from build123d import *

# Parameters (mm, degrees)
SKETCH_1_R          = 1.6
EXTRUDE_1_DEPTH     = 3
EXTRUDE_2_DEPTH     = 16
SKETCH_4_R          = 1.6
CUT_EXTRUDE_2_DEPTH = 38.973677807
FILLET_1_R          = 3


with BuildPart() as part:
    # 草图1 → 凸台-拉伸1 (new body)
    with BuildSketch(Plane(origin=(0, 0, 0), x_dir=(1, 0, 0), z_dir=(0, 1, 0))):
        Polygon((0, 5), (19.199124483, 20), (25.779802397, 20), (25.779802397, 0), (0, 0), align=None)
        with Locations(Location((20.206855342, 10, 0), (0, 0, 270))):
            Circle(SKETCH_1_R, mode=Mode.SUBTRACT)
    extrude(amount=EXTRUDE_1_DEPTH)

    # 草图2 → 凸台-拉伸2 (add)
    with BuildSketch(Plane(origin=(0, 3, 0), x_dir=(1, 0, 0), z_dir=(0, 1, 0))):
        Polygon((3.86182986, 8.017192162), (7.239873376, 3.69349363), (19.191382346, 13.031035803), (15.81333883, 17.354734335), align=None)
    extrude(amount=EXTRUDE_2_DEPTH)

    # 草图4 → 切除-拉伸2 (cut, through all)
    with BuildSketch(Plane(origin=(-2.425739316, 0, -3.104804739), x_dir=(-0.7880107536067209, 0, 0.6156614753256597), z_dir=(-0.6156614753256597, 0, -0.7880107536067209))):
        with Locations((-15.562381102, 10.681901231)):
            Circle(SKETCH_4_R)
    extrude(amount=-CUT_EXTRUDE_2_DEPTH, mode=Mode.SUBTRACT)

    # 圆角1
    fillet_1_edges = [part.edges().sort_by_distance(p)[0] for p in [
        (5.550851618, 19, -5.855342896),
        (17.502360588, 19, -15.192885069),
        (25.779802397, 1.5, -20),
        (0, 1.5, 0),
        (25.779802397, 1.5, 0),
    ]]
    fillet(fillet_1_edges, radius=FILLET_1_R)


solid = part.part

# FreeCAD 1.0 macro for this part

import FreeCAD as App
import Part
import Sketcher
Q = App.Units.Quantity


def edges_at(feature, points):
    """Names of the edges that pass closest to the given points."""
    edges = feature.Shape.Edges
    near = lambda p: min(range(len(edges)), key=lambda i: edges[i].distToShape(Part.Vertex(*p))[0])
    return sorted({f"Edge{near(p) + 1}" for p in points})

doc = App.newDocument("Part")
body = doc.addObject("PartDesign::Body", "Body")

sketch1 = body.newObject("Sketcher::SketchObject", "Sketch")
sketch1.AttachmentSupport = (doc.getObject("XZ_Plane"), [""])
sketch1.MapMode = "FlatFace"
sketch1.addGeometry([
    Part.LineSegment(App.Vector(19.2, -20, 0), App.Vector(0, -5, 0)),
    Part.LineSegment(App.Vector(0, -5, 0), App.Vector(0, 0, 0)),
    Part.LineSegment(App.Vector(0, 0, 0), App.Vector(25.8, 0, 0)),
    Part.LineSegment(App.Vector(25.8, 0, 0), App.Vector(25.8, -20, 0)),
    Part.LineSegment(App.Vector(25.8, -20, 0), App.Vector(19.2, -20, 0)),
    Part.Circle(App.Vector(20.2, -10, 0), App.Vector(0, 0, 1), 1.6),
], False)
sketch1.addConstraint([
    Sketcher.Constraint("Coincident", 0, 2, 1, 1),
    Sketcher.Constraint("Coincident", 1, 2, 2, 1),
    Sketcher.Constraint("Coincident", 2, 2, 3, 1),
    Sketcher.Constraint("Coincident", 3, 2, 4, 1),
    Sketcher.Constraint("Coincident", 4, 2, 0, 1),
    Sketcher.Constraint("Vertical", 1),
    Sketcher.Constraint("Horizontal", 2),
    Sketcher.Constraint("Vertical", 3),
    Sketcher.Constraint("Horizontal", 4),
    Sketcher.Constraint("Coincident", 1, 2, -1, 1),
    Sketcher.Constraint("Diameter", 5, 3.2),
    Sketcher.Constraint("DistanceY", 1, 1, 1, 2, 5.0),
    Sketcher.Constraint("DistanceY", 3, 2, 3, 1, 20.0),
    Sketcher.Constraint("Angle", 0, Q("142 deg")),
    Sketcher.Constraint("DistanceY", 5, 3, -1, 1, 10.0),
    Sketcher.Constraint("DistanceX", 2, 1, 2, 2, 25.779802),
    Sketcher.Constraint("DistanceX", 4, 2, 5, 3, 1.007731),
])
pad1 = body.newObject("PartDesign::Pad", "Pad")
pad1.Profile = sketch1
pad1.Length = 3
pad1.Reversed = True

sketch2 = body.newObject("Sketcher::SketchObject", "Sketch001")
sketch2.AttachmentSupport = (doc.getObject("XZ_Plane"), [""])
sketch2.MapMode = "FlatFace"
sketch2.AttachmentOffset = App.Placement(App.Vector(0, 0, -3), App.Rotation())
sketch2.addGeometry([
    Part.LineSegment(App.Vector(4, -8, 0), App.Vector(7, -4, 0)),
    Part.LineSegment(App.Vector(7, -4, 0), App.Vector(19, -13, 0)),
    Part.LineSegment(App.Vector(19, -13, 0), App.Vector(16, -17, 0)),
    Part.LineSegment(App.Vector(16, -17, 0), App.Vector(4, -8, 0)),
], False)
sketch2.addConstraint([
    Sketcher.Constraint("Coincident", 0, 2, 1, 1),
    Sketcher.Constraint("Coincident", 1, 2, 2, 1),
    Sketcher.Constraint("Coincident", 2, 2, 3, 1),
    Sketcher.Constraint("Coincident", 3, 2, 0, 1),
    Sketcher.Constraint("Perpendicular", 0, 1),
    Sketcher.Constraint("Perpendicular", 1, 2),
    Sketcher.Constraint("Perpendicular", 2, 3),
    Sketcher.Constraint("Angle", 0, Q("52 deg")),
    Sketcher.Constraint("DistanceY", 2, 2, 1, 2, 4.323699),
    Sketcher.Constraint("DistanceX", -1, 1, 2, 2, 15.813339),
    Sketcher.Constraint("DistanceX", -1, 1, 3, 2, 3.86183),
    Sketcher.Constraint("DistanceY", 0, 2, -1, 1, 3.693494),
])
pad2 = body.newObject("PartDesign::Pad", "Pad001")
pad2.Profile = sketch2
pad2.Length = 16
pad2.Reversed = True

sketch3 = body.newObject("Sketcher::SketchObject", "Sketch002")
sketch3.Placement = App.Placement(App.Vector(-2.425739, 0, -3.104805), App.Rotation(App.Vector(-0.788010754, 0, 0.615661475), App.Vector(0, 1, 0), App.Vector(-0.615661475, 0, -0.788010754), "ZXY"))
sketch3.addGeometry(Part.Circle(App.Vector(-15.6, 10.7, 0), App.Vector(0, 0, 1), 1.6), False)
sketch3.addConstraint([
    Sketcher.Constraint("Diameter", 0, 3.2),
    Sketcher.Constraint("DistanceY", -1, 1, 0, 3, 10.681901),
    Sketcher.Constraint("DistanceX", 0, 3, -1, 1, 15.562381),
])
pocket1 = body.newObject("PartDesign::Pocket", "Pocket")
pocket1.Profile = sketch3
pocket1.Type = "ThroughAll"
doc.recompute()

fillet = body.newObject("PartDesign::Fillet", "Fillet")
fillet.Base = (pocket1, edges_at(pocket1, [
    (5.551, 19, -5.855),
    (17.502, 19, -15.193),
    (25.78, 1.5, -20),
    (0, 1.5, 0),
    (25.78, 1.5, 0),
]))
fillet.Radius = 3

doc.recompute()
